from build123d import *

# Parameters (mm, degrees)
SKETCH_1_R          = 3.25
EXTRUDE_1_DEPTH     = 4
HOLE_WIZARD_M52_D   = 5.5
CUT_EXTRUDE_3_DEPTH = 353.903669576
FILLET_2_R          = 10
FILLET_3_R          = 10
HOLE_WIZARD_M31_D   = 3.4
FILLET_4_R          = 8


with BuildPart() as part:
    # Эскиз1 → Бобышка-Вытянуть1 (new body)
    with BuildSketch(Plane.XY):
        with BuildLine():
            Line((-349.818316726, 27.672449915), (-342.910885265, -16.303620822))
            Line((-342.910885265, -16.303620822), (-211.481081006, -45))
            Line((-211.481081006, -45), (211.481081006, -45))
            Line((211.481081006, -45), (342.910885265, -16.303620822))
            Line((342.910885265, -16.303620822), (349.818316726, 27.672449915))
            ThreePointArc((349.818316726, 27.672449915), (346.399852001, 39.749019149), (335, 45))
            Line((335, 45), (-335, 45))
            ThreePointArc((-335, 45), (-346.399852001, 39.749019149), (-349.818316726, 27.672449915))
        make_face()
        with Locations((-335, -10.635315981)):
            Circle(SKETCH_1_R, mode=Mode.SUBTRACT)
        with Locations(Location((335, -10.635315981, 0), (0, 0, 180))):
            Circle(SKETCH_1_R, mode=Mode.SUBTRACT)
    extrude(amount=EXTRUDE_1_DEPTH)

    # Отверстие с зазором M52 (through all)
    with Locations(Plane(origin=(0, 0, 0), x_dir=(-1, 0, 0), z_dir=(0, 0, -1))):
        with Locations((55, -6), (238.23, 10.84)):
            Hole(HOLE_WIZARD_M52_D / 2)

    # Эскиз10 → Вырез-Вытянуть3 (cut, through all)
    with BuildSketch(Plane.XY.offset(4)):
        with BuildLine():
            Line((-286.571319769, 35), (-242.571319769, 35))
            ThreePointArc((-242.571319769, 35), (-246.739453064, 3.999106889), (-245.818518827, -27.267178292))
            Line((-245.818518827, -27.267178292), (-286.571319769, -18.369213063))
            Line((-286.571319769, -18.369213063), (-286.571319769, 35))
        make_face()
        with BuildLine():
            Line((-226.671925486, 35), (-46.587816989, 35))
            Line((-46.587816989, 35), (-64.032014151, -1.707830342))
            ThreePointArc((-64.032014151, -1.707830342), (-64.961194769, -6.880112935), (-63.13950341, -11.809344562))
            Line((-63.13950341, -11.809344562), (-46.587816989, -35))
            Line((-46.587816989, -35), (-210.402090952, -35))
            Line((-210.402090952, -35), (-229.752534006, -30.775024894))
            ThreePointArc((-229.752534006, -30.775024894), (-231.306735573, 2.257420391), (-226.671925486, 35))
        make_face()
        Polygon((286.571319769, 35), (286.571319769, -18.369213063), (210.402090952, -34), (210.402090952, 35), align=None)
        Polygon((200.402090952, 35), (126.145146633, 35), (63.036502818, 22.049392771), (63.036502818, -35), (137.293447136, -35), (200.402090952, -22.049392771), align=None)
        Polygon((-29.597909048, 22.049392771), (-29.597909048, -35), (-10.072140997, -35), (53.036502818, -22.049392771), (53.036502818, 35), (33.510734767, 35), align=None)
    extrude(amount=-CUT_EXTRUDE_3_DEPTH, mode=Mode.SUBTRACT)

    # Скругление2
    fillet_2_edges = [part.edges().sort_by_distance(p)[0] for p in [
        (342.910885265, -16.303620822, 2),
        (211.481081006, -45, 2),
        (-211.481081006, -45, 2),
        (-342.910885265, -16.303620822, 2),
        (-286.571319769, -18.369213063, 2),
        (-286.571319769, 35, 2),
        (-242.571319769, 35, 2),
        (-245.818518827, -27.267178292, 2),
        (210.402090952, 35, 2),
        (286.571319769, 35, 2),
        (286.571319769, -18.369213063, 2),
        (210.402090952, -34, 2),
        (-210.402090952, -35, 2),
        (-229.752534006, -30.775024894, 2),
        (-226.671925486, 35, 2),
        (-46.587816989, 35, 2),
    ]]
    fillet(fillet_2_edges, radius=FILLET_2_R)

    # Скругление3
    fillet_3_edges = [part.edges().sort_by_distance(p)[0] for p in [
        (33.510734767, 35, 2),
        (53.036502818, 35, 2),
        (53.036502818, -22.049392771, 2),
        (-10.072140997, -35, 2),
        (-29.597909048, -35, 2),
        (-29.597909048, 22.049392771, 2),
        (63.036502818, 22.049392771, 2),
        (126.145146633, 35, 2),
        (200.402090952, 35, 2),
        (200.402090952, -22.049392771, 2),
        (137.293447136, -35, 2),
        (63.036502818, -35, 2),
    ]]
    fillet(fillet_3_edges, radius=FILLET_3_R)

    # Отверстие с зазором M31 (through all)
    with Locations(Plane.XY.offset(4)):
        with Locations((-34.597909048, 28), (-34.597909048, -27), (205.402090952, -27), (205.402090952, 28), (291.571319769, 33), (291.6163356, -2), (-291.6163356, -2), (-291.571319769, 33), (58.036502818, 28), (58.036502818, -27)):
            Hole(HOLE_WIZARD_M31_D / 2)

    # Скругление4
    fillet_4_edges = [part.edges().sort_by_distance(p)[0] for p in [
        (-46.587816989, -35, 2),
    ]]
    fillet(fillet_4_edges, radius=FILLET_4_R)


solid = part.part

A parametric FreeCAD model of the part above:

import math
import FreeCAD as App
import Part
import Sketcher

V = App.Vector
Q = App.Units.Quantity


def edges_at(feature, points):
    """Names of the edges that pass closest to the given points."""
    edges = feature.Shape.Edges
    near = lambda p: min(range(len(edges)), key=lambda i: edges[i].distToShape(Part.Vertex(*p))[0])
    return sorted({f"Edge{near(p) + 1}" for p in points})

doc = App.newDocument("Part")
params = doc.addObject("Spreadsheet::Sheet", "Params")
for row, (alias, value) in enumerate([
    ("sketch1_radius", "15 mm"),
    ("sketch1_diameter", "6.5 mm"),
    ("sketch1_width", "670 mm"),
    ("pad1_length", "4 mm"),
    ("sketch2_diameter", "5.5 mm"),
    ("hole_diameter", "5.5 mm"),
    ("sketch3_radius", "192 mm"),
    ("sketch3_radius2", "10 mm"),
    ("sketch3_radius3", "176.5 mm"),
    ("sketch3_width", "44 mm"),
    ("sketch3_height", "69 mm"),
    ("fillet_radius", "10 mm"),
    ("fillet2_radius", "10 mm"),
    ("sketch4_diameter", "3.4 mm"),
    ("hole2_diameter", "3.4 mm"),
    ("fillet3_radius", "8 mm"),
], start=1):
    params.set(f"A{row}", alias)
    params.set(f"B{row}", "=" + value)
    params.setAlias(f"B{row}", alias)

body = doc.addObject("PartDesign::Body", "Body")

# Sketch on XY plane
sketch1 = body.newObject("Sketcher::SketchObject", "Sketch")
sketch1.AttachmentSupport = (doc.getObject("XY_Plane"), [""])
sketch1.MapMode = "FlatFace"
sketch1.addGeometry([
    Part.LineSegment(V(-349.818317, 27.67245, 0), V(-342.910885, -16.303621, 0)),  # 0
    Part.LineSegment(V(-342.910885, -16.303621, 0), V(-211.481081, -45, 0)),  # 1
    Part.LineSegment(V(-211.481081, -45, 0), V(211.481081, -45, 0)),  # 2
    Part.LineSegment(V(211.481081, -45, 0), V(342.910885, -16.303621, 0)),  # 3
    Part.LineSegment(V(342.910885, -16.303621, 0), V(349.818317, 27.67245, 0)),  # 4
    Part.ArcOfCircle(Part.Circle(V(335, 30, 0), V(0, 0, 1), 15), math.radians(-8.926656), math.radians(90)),  # 5
    Part.LineSegment(V(335, 45, 0), V(-335, 45, 0)),  # 6
    Part.ArcOfCircle(Part.Circle(V(-335, 30, 0), V(0, 0, 1), 15), math.radians(90), math.radians(188.926656)),  # 7
    Part.Circle(V(-335, -10.635316, 0), V(0, 0, 1), 3.25),  # 8
    Part.Circle(V(335, -10.635316, 0), V(0, 0, 1), 3.25),  # 9
], False)
sketch1.addConstraint([
    Sketcher.Constraint("Coincident", 0, 2, 1, 1),
    Sketcher.Constraint("Coincident", 1, 2, 2, 1),
    Sketcher.Constraint("Coincident", 2, 2, 3, 1),
    Sketcher.Constraint("Coincident", 3, 2, 4, 1),
    Sketcher.Constraint("Tangent", 4, 2, 5, 1),
    Sketcher.Constraint("Tangent", 5, 2, 6, 1),
    Sketcher.Constraint("Tangent", 6, 2, 7, 1),
    Sketcher.Constraint("Tangent", 7, 2, 0, 1),
    Sketcher.Constraint("Horizontal", 2),
    Sketcher.Constraint("Horizontal", 6),
    Sketcher.Constraint("Equal", 5, 7),
    Sketcher.Constraint("Equal", 8, 9),
    Sketcher.Constraint("Symmetric", 8, 3, 9, 3, -2),
    Sketcher.Constraint("Symmetric", 0, 2, 3, 2, -2),
    Sketcher.Constraint("Horizontal", 4, 2, 7, 2),
    Sketcher.Constraint("Vertical", 7, 3, 8, 3),
    Sketcher.Constraint("Equal", 1, 3),
    Sketcher.Constraint("Radius", 5, Q("15 mm")),
    Sketcher.Constraint("Diameter", 8, Q("6.5 mm")),
    Sketcher.Constraint("DistanceX", 6, 2, 6, 1, Q("670 mm")),
    Sketcher.Constraint("DistanceY", -1, 1, 5, 3, Q("30 mm")),
    Sketcher.Constraint("DistanceY", 1, 2, -1, 1, Q("45 mm")),
    Sketcher.Constraint("Distance", 0, Q("44.515249 mm")),
    Sketcher.Constraint("DistanceX", 2, 1, 2, 2, Q("422.962162 mm")),
    Sketcher.Constraint("DistanceY", 0, 2, -1, 1, Q("16.303621 mm")),
    Sketcher.Constraint("DistanceY", 8, 3, -1, 1, Q("10.635316 mm")),
])
sketch1.setExpression("Constraints[17]", "Params.sketch1_radius")
sketch1.setExpression("Constraints[18]", "Params.sketch1_diameter")
sketch1.setExpression("Constraints[19]", "Params.sketch1_width")
pad1 = body.newObject("PartDesign::Pad", "Pad")
pad1.Profile = sketch1
pad1.setExpression("Length", "Params.pad1_length")

# Sketch on XY plane
sketch2 = body.newObject("Sketcher::SketchObject", "Sketch001")
sketch2.AttachmentSupport = (doc.getObject("XY_Plane"), [""])
sketch2.MapMode = "FlatFace"
sketch2.addGeometry([
    Part.Circle(V(-55, -6, 0), V(0, 0, 1), 2.75),
    Part.Circle(V(-238.23, 10.84, 0), V(0, 0, 1), 2.75),
], False)
sketch2.addConstraint([
    Sketcher.Constraint("Equal", 0, 1),
    Sketcher.Constraint("Diameter", 0, Q("5.5 mm")),
    Sketcher.Constraint("DistanceX", 0, 3, -1, 1, Q("55 mm")),
    Sketcher.Constraint("DistanceY", 0, 3, -1, 1, Q("6 mm")),
    Sketcher.Constraint("DistanceX", 1, 3, -1, 1, Q("238.23 mm")),
    Sketcher.Constraint("DistanceY", -1, 1, 1, 3, Q("10.84 mm")),
])
sketch2.setExpression("Constraints[1]", "Params.sketch2_diameter")
doc.recompute()
hole = body.newObject("PartDesign::Hole", "Hole")
hole.Profile = sketch2
hole.ThreadType = "None"
hole.setExpression("Diameter", "Params.hole_diameter")
hole.DepthType = "ThroughAll"
hole.Reversed = True

# Sketch on XY plane
sketch3 = body.newObject("Sketcher::SketchObject", "Sketch002")
sketch3.AttachmentSupport = (doc.getObject("XY_Plane"), [""])
sketch3.MapMode = "FlatFace"
sketch3.AttachmentOffset = App.Placement(V(0, 0, 4), App.Rotation())
sketch3.addGeometry([
    Part.LineSegment(V(-242.57132, 35, 0), V(-286.57132, 35, 0)),  # 0
    Part.LineSegment(V(-286.57132, 35, 0), V(-286.57132, -18.369213, 0)),  # 1
    Part.LineSegment(V(-286.57132, -18.369213, 0), V(-245.818519, -27.267178, 0)),  # 2
    Part.ArcOfCircle(Part.Circle(V(-55, -6, 0), V(0, 0, 1), 192), math.radians(167.670016), math.radians(186.359506)),  # 3
    Part.LineSegment(V(-46.587817, 35, 0), V(-226.671925, 35, 0)),  # 4
    Part.ArcOfCircle(Part.Circle(V(-55, -6, 0), V(0, 0, 1), 176.5), math.radians(166.567797), math.radians(188.069165)),  # 5
    Part.LineSegment(V(-229.752534, -30.775025, 0), V(-210.402091, -35, 0)),  # 6
    Part.LineSegment(V(-210.402091, -35, 0), V(-46.587817, -35, 0)),  # 7
    Part.LineSegment(V(-46.587817, -35, 0), V(-63.139503, -11.809345, 0)),  # 8
    Part.ArcOfCircle(Part.Circle(V(-55, -6, 0), V(0, 0, 1), 10), math.radians(154.582123), math.radians(215.516294)),  # 9
    Part.LineSegment(V(-64.032014, -1.70783, 0), V(-46.587817, 35, 0)),  # 10
    Part.LineSegment(V(286.57132, -18.369213, 0), V(286.57132, 35, 0)),  # 11
    Part.LineSegment(V(286.57132, 35, 0), V(210.402091, 35, 0)),  # 12
    Part.LineSegment(V(210.402091, 35, 0), V(210.402091, -34, 0)),  # 13
    Part.LineSegment(V(210.402091, -34, 0), V(286.57132, -18.369213, 0)),  # 14
    Part.LineSegment(V(200.402091, 35, 0), V(126.145147, 35, 0)),  # 15
    Part.LineSegment(V(126.145147, 35, 0), V(63.036503, 22.049393, 0)),  # 16
    Part.LineSegment(V(63.036503, 22.049393, 0), V(63.036503, -35, 0)),  # 17
    Part.LineSegment(V(63.036503, -35, 0), V(137.293447, -35, 0)),  # 18
    Part.LineSegment(V(137.293447, -35, 0), V(200.402091, -22.049393, 0)),  # 19
    Part.LineSegment(V(200.402091, -22.049393, 0), V(200.402091, 35, 0)),  # 20
    Part.LineSegment(V(-29.597909, 22.049393, 0), V(-29.597909, -35, 0)),  # 21
    Part.LineSegment(V(-29.597909, -35, 0), V(-10.072141, -35, 0)),  # 22
    Part.LineSegment(V(-10.072141, -35, 0), V(53.036503, -22.049393, 0)),  # 23
    Part.LineSegment(V(53.036503, -22.049393, 0), V(53.036503, 35, 0)),  # 24
    Part.LineSegment(V(53.036503, 35, 0), V(33.510735, 35, 0)),  # 25
    Part.LineSegment(V(33.510735, 35, 0), V(-29.597909, 22.049393, 0)),  # 26
], False)
sketch3.addConstraint([
    Sketcher.Constraint("Coincident", 0, 2, 1, 1),
    Sketcher.Constraint("Coincident", 1, 2, 2, 1),
    Sketcher.Constraint("Coincident", 2, 2, 3, 2),
    Sketcher.Constraint("Coincident", 3, 1, 0, 1),
    Sketcher.Constraint("Coincident", 4, 2, 5, 1),
    Sketcher.Constraint("Coincident", 5, 2, 6, 1),
    Sketcher.Constraint("Coincident", 6, 2, 7, 1),
    Sketcher.Constraint("Coincident", 7, 2, 8, 1),
    Sketcher.Constraint("Tangent", 8, 2, 9, 2),
    Sketcher.Constraint("Tangent", 9, 1, 10, 1),
    Sketcher.Constraint("Coincident", 10, 2, 4, 1),
    Sketcher.Constraint("Coincident", 11, 2, 12, 1),
    Sketcher.Constraint("Coincident", 12, 2, 13, 1),
    Sketcher.Constraint("Coincident", 13, 2, 14, 1),
    Sketcher.Constraint("Coincident", 14, 2, 11, 1),
    Sketcher.Constraint("Coincident", 15, 2, 16, 1),
    Sketcher.Constraint("Coincident", 16, 2, 17, 1),
    Sketcher.Constraint("Coincident", 17, 2, 18, 1),
    Sketcher.Constraint("Coincident", 18, 2, 19, 1),
    Sketcher.Constraint("Coincident", 19, 2, 20, 1),
    Sketcher.Constraint("Coincident", 20, 2, 15, 1),
    Sketcher.Constraint("Coincident", 21, 2, 22, 1),
    Sketcher.Constraint("Coincident", 22, 2, 23, 1),
    Sketcher.Constraint("Coincident", 23, 2, 24, 1),
    Sketcher.Constraint("Coincident", 24, 2, 25, 1),
    Sketcher.Constraint("Coincident", 25, 2, 26, 1),
    Sketcher.Constraint("Coincident", 26, 2, 21, 1),
    Sketcher.Constraint("Horizontal", 0),
    Sketcher.Constraint("Vertical", 1),
    Sketcher.Constraint("Horizontal", 4),
    Sketcher.Constraint("Horizontal", 7),
    Sketcher.Constraint("Vertical", 11),
    Sketcher.Constraint("Horizontal", 12),
    Sketcher.Constraint("Vertical", 13),
    Sketcher.Constraint("Horizontal", 15),
    Sketcher.Constraint("Vertical", 17),
    Sketcher.Constraint("Horizontal", 18),
    Sketcher.Constraint("Vertical", 20),
    Sketcher.Constraint("Vertical", 21),
    Sketcher.Constraint("Horizontal", 22),
    Sketcher.Constraint("Vertical", 24),
    Sketcher.Constraint("Horizontal", 25),
    Sketcher.Constraint("Coincident", 5, 3, 3, 3),
    Sketcher.Constraint("Coincident", 9, 3, 3, 3),
    Sketcher.Constraint("Symmetric", 6, 2, 12, 2, -1, 1),
    Sketcher.Constraint("Symmetric", 0, 2, 11, 2, -2),
    Sketcher.Constraint("Symmetric", 7, 2, 10, 2, -1),
    Sketcher.Constraint("Parallel", 2, 6),
    Sketcher.Constraint("Parallel", 14, 16),
    Sketcher.Constraint("Parallel", 16, 19),
    Sketcher.Constraint("Parallel", 19, 23),
    Sketcher.Constraint("Parallel", 23, 26),
    Sketcher.Constraint("Horizontal", 1, 2, 14, 2),
    Sketcher.Constraint("Horizontal", 12, 2, 15, 2),
    Sketcher.Constraint("Horizontal", 7, 2, 17, 2),
    Sketcher.Constraint("Horizontal", 18, 2, 21, 2),
    Sketcher.Constraint("Horizontal", 19, 2, 23, 2),
    Sketcher.Constraint("Horizontal", 20, 2, 24, 2),
    Sketcher.Constraint("Horizontal", 16, 2, 26, 2),
    Sketcher.Constraint("Equal", 15, 18),
    Sketcher.Constraint("Radius", 3, Q("192 mm")),
    Sketcher.Constraint("Radius", 9, Q("10 mm")),
    Sketcher.Constraint("Radius", 5, Q("176.5 mm")),
    Sketcher.Constraint("DistanceX", 0, 2, 0, 1, Q("44 mm")),
    Sketcher.Constraint("DistanceY", 13, 2, 13, 1, Q("69 mm")),
    Sketcher.Constraint("DistanceX", 3, 3, -1, 1, Q("55 mm")),
    Sketcher.Constraint("DistanceY", 3, 3, -1, 1, Q("6 mm")),
    Sketcher.Constraint("DistanceY", -1, 1, 0, 2, Q("35 mm")),
    Sketcher.Constraint("DistanceX", 19, 2, 13, 2, Q("10 mm")),
    Sketcher.Constraint("DistanceX", 23, 2, 17, 2, Q("10 mm")),
    Sketcher.Constraint("DistanceX", 4, 2, 4, 1, Q("180.084108 mm")),
    Sketcher.Constraint("DistanceX", 12, 2, 12, 1, Q("76.169229 mm")),
    Sketcher.Constraint("DistanceX", 22, 1, 22, 2, Q("19.525768 mm")),
    Sketcher.Constraint("DistanceX", 1, 2, 2, 2, Q("40.752801 mm")),
    Sketcher.Constraint("DistanceX", 15, 2, 18, 2, Q("11.148301 mm")),
    Sketcher.Constraint("DistanceX", 15, 2, 15, 1, Q("74.256944 mm")),
    Sketcher.Constraint("DistanceY", 1, 2, 1, 1, Q("53.369213 mm")),
])
sketch3.setExpression("Constraints[60]", "Params.sketch3_radius")
sketch3.setExpression("Constraints[61]", "Params.sketch3_radius2")
sketch3.setExpression("Constraints[62]", "Params.sketch3_radius3")
sketch3.setExpression("Constraints[63]", "Params.sketch3_width")
sketch3.setExpression("Constraints[64]", "Params.sketch3_height")
pocket1 = body.newObject("PartDesign::Pocket", "Pocket")
pocket1.Profile = sketch3
pocket1.Type = "ThroughAll"
doc.recompute()

fillet = body.newObject("PartDesign::Fillet", "Fillet")
fillet.Base = (pocket1, edges_at(pocket1, [
    (342.911, -16.304, 2),
    (211.481, -45, 2),
    (-211.481, -45, 2),
    (-342.911, -16.304, 2),
    (-286.571, -18.369, 2),
    (-286.571, 35, 2),
    (-242.571, 35, 2),
    (-245.819, -27.267, 2),
    (210.402, 35, 2),
    (286.571, 35, 2),
    (286.571, -18.369, 2),
    (210.402, -34, 2),
    (-210.402, -35, 2),
    (-229.753, -30.775, 2),
    (-226.672, 35, 2),
    (-46.588, 35, 2),
]))
fillet.setExpression("Radius", "Params.fillet_radius")
doc.recompute()

fillet2 = body.newObject("PartDesign::Fillet", "Fillet001")
fillet2.Base = (fillet, edges_at(fillet, [
    (33.511, 35, 2),
    (53.037, 35, 2),
    (53.037, -22.049, 2),
    (-10.072, -35, 2),
    (-29.598, -35, 2),
    (-29.598, 22.049, 2),
    (63.037, 22.049, 2),
    (126.145, 35, 2),
    (200.402, 35, 2),
    (200.402, -22.049, 2),
    (137.293, -35, 2),
    (63.037, -35, 2),
]))
fillet2.setExpression("Radius", "Params.fillet2_radius")

# Sketch on XY plane
sketch4 = body.newObject("Sketcher::SketchObject", "Sketch003")
sketch4.AttachmentSupport = (doc.getObject("XY_Plane"), [""])
sketch4.MapMode = "FlatFace"
sketch4.AttachmentOffset = App.Placement(V(0, 0, 4), App.Rotation())
sketch4.addGeometry([
    Part.Circle(V(-34.597909, 28, 0), V(0, 0, 1), 1.7),  # 0
    Part.Circle(V(-34.597909, -27, 0), V(0, 0, 1), 1.7),  # 1
    Part.Circle(V(205.402091, -27, 0), V(0, 0, 1), 1.7),  # 2
    Part.Circle(V(205.402091, 28, 0), V(0, 0, 1), 1.7),  # 3
    Part.Circle(V(291.57132, 33, 0), V(0, 0, 1), 1.7),  # 4
    Part.Circle(V(291.616336, -2, 0), V(0, 0, 1), 1.7),  # 5
    Part.Circle(V(-291.616336, -2, 0), V(0, 0, 1), 1.7),  # 6
    Part.Circle(V(-291.57132, 33, 0), V(0, 0, 1), 1.7),  # 7
    Part.Circle(V(58.036503, 28, 0), V(0, 0, 1), 1.7),  # 8
    Part.Circle(V(58.036503, -27, 0), V(0, 0, 1), 1.7),  # 9
], False)
sketch4.addConstraint([
    Sketcher.Constraint("Equal", 0, 1),
    Sketcher.Constraint("Equal", 1, 2),
    Sketcher.Constraint("Equal", 2, 3),
    Sketcher.Constraint("Equal", 3, 4),
    Sketcher.Constraint("Equal", 4, 5),
    Sketcher.Constraint("Equal", 5, 6),
    Sketcher.Constraint("Equal", 6, 7),
    Sketcher.Constraint("Equal", 7, 8),
    Sketcher.Constraint("Equal", 8, 9),
    Sketcher.Constraint("Symmetric", 5, 3, 6, 3, -2),
    Sketcher.Constraint("Symmetric", 4, 3, 7, 3, -2),
    Sketcher.Constraint("Horizontal", 1, 3, 2, 3),
    Sketcher.Constraint("Horizontal", 0, 3, 3, 3),
    Sketcher.Constraint("Horizontal", 3, 3, 8, 3),
    Sketcher.Constraint("Horizontal", 2, 3, 9, 3),
    Sketcher.Constraint("Vertical", 0, 3, 1, 3),
    Sketcher.Constraint("Vertical", 2, 3, 3, 3),
    Sketcher.Constraint("Vertical", 8, 3, 9, 3),
    Sketcher.Constraint("Diameter", 0, Q("3.4 mm")),
    Sketcher.Constraint("DistanceY", -1, 1, 0, 3, Q("28 mm")),
    Sketcher.Constraint("DistanceY", 1, 3, -1, 1, Q("27 mm")),
    Sketcher.Constraint("DistanceY", -1, 1, 4, 3, Q("33 mm")),
    Sketcher.Constraint("DistanceY", 5, 3, -1, 1, Q("2 mm")),
    Sketcher.Constraint("DistanceX", 1, 3, 2, 3, Q("240 mm")),
    Sketcher.Constraint("DistanceX", 0, 3, -1, 1, Q("34.597909 mm")),
    Sketcher.Constraint("DistanceX", -1, 1, 4, 3, Q("291.57132 mm")),
    Sketcher.Constraint("DistanceX", 6, 3, 5, 3, Q("583.232671 mm")),
    Sketcher.Constraint("DistanceX", 0, 3, 8, 3, Q("92.634412 mm")),
])
sketch4.setExpression("Constraints[18]", "Params.sketch4_diameter")
doc.recompute()
hole2 = body.newObject("PartDesign::Hole", "Hole001")
hole2.Profile = sketch4
hole2.ThreadType = "None"
hole2.setExpression("Diameter", "Params.hole2_diameter")
hole2.DepthType = "ThroughAll"
doc.recompute()

fillet3 = body.newObject("PartDesign::Fillet", "Fillet002")
fillet3.Base = (hole2, edges_at(hole2, [(-46.588, -35, 2)]))
fillet3.setExpression("Radius", "Params.fillet3_radius")

doc.recompute()
